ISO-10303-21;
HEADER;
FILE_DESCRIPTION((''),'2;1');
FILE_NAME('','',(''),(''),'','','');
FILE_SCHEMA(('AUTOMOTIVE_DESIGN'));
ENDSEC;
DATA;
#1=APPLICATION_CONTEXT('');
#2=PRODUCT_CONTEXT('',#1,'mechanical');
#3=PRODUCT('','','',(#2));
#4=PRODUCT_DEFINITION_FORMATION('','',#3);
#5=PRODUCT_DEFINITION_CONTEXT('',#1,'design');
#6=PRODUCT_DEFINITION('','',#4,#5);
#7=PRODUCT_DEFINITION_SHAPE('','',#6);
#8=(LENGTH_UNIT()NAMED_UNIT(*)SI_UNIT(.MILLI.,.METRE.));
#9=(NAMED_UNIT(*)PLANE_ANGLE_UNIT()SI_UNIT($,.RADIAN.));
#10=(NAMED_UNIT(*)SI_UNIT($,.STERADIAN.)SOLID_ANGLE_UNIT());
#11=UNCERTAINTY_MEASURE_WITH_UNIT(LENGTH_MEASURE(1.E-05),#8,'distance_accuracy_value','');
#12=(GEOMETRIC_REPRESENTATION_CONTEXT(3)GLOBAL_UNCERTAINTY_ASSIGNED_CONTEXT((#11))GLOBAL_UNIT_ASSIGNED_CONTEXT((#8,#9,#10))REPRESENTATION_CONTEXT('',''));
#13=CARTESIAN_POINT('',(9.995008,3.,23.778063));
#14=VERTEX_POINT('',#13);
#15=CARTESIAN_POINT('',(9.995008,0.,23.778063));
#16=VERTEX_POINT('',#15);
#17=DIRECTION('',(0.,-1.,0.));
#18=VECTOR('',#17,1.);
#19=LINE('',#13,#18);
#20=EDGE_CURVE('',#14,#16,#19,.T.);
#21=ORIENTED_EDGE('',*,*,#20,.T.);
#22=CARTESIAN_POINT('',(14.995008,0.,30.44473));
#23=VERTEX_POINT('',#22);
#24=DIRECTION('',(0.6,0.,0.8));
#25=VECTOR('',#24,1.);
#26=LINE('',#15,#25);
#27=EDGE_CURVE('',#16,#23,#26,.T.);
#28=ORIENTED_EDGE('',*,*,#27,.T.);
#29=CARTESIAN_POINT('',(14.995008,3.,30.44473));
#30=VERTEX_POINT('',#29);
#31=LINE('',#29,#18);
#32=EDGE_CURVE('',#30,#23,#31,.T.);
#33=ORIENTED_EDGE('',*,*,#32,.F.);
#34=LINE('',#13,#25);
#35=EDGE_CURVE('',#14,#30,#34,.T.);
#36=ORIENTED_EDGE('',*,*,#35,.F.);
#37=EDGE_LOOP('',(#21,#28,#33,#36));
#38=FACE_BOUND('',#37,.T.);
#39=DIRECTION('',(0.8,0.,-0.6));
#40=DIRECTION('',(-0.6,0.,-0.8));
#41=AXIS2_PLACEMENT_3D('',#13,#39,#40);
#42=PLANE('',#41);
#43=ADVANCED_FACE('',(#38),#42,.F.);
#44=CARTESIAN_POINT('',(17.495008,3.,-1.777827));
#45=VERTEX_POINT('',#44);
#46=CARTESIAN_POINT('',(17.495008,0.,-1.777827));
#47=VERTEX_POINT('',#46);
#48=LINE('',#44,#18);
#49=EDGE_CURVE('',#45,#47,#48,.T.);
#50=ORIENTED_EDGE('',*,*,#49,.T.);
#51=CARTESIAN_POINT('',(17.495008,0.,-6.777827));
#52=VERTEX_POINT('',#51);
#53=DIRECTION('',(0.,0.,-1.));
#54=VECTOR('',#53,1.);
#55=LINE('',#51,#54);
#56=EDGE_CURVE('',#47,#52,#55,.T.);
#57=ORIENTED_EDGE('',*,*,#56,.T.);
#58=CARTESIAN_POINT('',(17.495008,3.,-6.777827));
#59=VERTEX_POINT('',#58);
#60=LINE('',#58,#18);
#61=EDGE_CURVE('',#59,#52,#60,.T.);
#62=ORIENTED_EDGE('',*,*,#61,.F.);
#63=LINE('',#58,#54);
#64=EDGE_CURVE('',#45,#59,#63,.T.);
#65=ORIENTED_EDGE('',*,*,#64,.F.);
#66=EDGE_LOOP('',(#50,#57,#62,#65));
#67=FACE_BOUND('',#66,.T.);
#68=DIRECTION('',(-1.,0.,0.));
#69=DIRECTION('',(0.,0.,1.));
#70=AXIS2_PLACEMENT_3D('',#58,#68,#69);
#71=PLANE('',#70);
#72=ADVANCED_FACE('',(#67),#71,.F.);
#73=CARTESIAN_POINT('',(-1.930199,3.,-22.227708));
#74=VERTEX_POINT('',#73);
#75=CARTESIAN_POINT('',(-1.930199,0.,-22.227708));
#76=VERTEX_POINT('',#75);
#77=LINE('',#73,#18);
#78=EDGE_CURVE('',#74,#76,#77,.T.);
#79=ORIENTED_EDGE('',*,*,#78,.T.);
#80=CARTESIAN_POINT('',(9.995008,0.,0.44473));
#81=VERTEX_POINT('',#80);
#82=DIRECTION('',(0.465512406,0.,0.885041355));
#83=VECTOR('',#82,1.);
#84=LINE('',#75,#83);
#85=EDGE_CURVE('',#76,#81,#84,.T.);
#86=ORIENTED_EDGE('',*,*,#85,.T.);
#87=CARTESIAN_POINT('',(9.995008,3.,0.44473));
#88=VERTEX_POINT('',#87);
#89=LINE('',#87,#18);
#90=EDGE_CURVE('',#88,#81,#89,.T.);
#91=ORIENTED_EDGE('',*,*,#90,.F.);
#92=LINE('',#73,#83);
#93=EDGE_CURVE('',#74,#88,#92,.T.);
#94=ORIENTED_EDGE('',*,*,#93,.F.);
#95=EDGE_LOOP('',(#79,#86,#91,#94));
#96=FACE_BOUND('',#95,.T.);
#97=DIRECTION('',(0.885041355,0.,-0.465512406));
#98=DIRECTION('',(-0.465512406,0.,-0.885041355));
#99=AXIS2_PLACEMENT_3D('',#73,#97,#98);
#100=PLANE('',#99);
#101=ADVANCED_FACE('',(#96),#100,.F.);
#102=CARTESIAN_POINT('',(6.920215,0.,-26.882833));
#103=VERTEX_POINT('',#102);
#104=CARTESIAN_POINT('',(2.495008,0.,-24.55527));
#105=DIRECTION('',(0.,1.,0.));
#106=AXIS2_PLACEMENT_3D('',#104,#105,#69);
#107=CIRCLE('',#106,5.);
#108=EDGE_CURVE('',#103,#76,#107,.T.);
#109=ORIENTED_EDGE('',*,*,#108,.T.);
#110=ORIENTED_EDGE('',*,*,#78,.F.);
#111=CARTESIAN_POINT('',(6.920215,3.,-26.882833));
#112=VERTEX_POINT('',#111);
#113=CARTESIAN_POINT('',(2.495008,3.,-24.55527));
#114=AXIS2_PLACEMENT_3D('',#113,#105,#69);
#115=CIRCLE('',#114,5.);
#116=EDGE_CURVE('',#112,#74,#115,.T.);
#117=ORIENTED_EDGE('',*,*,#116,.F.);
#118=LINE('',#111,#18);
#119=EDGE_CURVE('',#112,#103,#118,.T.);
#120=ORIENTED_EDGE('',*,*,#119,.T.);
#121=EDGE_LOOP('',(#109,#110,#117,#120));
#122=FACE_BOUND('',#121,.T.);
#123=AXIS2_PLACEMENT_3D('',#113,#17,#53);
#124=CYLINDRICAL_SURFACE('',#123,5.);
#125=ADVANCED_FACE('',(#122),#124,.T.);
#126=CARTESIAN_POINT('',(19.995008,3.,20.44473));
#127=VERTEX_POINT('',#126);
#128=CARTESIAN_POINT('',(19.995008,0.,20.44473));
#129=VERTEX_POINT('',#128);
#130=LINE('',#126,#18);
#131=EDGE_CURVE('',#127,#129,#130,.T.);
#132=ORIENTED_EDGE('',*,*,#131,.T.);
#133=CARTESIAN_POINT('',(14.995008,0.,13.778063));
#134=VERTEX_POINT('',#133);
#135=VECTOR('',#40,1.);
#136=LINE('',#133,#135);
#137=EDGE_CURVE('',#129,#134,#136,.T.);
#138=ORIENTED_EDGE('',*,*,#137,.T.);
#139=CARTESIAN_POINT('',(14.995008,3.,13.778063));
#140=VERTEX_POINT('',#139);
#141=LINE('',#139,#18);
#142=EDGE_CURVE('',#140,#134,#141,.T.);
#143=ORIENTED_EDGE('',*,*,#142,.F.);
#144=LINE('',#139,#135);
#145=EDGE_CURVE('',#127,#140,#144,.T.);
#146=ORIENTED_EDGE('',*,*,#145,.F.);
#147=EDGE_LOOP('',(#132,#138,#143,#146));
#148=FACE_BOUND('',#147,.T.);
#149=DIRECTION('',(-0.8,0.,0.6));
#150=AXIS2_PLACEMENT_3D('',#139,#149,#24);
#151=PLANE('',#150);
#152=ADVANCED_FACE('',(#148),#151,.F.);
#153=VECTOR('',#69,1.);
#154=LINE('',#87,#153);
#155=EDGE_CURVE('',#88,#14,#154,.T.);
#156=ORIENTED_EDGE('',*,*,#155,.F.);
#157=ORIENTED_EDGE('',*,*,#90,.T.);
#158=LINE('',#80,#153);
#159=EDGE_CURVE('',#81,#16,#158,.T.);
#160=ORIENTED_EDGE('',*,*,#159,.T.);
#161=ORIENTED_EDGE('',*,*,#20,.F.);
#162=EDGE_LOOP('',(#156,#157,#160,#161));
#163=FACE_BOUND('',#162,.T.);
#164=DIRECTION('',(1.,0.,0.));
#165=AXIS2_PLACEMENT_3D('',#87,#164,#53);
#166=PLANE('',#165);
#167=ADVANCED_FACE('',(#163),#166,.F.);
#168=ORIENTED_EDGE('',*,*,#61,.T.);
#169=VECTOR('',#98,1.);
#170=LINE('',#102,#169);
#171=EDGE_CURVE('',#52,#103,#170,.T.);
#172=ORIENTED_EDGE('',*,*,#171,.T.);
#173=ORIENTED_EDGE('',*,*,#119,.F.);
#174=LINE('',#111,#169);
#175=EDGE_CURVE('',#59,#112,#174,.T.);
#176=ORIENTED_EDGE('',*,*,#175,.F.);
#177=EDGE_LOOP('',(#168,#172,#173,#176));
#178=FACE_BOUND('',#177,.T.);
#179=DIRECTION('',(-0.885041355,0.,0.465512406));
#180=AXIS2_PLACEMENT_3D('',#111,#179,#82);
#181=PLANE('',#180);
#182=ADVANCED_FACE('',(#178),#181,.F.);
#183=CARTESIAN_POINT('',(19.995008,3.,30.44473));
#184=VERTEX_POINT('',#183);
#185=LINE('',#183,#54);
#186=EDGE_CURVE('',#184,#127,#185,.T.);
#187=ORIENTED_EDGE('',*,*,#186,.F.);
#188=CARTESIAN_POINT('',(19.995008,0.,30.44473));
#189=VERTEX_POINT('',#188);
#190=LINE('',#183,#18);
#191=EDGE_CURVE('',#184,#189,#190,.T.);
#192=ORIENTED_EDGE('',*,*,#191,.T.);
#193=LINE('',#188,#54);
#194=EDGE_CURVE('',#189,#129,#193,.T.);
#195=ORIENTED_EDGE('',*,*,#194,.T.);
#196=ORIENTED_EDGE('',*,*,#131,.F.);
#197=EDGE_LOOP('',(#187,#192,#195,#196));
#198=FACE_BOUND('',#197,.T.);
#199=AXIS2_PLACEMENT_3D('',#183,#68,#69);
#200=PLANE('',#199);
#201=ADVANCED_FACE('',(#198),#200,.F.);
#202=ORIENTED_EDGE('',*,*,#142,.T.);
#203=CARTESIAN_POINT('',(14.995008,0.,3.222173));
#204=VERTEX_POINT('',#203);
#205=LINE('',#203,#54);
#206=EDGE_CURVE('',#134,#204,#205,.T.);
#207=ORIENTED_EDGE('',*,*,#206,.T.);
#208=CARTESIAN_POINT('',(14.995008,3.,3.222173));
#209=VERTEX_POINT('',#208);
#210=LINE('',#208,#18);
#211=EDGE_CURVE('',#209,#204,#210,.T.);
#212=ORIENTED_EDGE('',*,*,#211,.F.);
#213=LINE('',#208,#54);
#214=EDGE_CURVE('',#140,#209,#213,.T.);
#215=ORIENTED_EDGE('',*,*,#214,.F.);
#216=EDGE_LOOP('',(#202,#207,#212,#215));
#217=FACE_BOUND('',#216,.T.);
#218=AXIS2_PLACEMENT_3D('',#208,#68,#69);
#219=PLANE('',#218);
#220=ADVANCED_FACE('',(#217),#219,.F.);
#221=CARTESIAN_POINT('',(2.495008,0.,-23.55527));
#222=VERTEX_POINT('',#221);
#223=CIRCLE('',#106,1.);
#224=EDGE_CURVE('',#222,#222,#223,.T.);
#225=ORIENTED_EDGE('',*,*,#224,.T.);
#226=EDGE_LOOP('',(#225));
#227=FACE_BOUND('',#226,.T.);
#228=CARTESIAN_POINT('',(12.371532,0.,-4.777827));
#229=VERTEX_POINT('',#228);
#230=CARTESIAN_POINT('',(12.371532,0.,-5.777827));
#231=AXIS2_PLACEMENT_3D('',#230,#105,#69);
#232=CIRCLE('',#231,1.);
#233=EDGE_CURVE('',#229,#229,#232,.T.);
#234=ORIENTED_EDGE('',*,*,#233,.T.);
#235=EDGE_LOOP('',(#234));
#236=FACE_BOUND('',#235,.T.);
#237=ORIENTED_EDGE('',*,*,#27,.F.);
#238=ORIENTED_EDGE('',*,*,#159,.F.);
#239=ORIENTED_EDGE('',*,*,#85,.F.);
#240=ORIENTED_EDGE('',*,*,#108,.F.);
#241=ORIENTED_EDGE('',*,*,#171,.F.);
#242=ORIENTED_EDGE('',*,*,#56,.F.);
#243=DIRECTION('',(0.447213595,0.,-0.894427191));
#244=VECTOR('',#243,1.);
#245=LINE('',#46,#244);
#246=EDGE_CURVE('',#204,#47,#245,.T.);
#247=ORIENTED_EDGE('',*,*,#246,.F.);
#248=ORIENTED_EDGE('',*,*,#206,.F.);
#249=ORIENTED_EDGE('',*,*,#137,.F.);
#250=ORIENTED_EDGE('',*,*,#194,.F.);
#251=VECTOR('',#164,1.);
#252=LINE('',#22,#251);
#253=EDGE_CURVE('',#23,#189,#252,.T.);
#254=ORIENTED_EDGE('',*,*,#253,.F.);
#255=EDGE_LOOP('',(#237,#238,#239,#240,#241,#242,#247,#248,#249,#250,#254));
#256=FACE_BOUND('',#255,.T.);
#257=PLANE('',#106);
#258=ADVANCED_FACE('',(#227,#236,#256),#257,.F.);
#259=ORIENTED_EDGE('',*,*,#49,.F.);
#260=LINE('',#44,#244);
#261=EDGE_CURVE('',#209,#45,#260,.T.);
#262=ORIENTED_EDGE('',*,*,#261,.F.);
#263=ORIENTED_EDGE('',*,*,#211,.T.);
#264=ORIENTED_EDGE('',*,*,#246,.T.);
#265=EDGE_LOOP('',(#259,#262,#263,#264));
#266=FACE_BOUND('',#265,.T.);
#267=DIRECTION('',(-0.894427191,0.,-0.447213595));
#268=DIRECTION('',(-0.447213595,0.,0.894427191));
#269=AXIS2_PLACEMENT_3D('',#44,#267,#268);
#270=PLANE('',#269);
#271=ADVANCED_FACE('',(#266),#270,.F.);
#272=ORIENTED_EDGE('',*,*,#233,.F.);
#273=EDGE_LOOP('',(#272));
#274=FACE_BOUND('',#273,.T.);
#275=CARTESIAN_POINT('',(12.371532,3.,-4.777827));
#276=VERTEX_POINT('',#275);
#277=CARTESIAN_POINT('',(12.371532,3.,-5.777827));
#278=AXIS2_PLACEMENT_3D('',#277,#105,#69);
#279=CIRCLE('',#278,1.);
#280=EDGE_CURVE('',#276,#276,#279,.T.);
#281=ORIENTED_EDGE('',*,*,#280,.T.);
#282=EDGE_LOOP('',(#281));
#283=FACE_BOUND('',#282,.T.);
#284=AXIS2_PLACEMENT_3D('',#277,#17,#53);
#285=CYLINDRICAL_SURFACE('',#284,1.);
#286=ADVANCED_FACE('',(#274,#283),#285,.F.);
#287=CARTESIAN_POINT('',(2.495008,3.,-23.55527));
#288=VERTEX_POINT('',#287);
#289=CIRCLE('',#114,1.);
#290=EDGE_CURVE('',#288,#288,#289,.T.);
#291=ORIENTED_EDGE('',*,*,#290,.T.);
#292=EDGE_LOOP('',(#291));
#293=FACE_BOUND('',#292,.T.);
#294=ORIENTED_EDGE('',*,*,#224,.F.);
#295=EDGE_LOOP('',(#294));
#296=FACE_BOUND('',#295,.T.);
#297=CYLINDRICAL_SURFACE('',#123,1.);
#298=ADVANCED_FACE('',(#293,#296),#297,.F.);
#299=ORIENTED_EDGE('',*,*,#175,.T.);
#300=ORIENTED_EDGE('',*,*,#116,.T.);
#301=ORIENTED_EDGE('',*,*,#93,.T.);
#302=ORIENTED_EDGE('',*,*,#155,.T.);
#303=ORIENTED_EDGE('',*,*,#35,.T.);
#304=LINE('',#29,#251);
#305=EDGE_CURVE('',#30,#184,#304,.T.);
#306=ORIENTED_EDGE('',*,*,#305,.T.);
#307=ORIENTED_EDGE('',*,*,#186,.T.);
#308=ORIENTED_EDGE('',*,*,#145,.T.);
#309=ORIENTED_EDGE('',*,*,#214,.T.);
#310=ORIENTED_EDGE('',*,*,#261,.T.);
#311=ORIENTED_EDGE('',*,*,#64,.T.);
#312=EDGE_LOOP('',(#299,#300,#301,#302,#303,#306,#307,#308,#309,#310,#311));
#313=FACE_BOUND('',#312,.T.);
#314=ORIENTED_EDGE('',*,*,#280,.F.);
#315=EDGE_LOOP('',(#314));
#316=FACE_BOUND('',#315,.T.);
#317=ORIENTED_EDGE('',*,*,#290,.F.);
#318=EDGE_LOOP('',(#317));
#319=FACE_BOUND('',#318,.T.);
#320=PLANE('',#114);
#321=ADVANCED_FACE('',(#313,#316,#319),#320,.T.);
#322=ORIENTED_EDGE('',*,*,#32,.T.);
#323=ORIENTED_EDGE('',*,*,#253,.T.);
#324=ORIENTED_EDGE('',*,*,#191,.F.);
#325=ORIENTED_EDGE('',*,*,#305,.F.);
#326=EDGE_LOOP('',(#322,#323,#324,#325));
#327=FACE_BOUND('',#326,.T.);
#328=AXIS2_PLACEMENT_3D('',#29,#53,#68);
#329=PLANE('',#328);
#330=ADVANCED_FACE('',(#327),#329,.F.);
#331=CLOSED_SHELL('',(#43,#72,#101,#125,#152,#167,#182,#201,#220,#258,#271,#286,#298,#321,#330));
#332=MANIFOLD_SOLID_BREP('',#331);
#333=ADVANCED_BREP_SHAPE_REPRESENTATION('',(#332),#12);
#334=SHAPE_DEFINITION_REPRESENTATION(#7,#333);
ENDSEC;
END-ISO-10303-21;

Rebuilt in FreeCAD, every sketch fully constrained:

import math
import FreeCAD as App
import Part
import Sketcher

V = App.Vector
Q = App.Units.Quantity

doc = App.newDocument("Part")
params = doc.addObject("Spreadsheet::Sheet", "Params")
for row, (alias, value) in enumerate([
    ("sketch1_diameter", "2 mm"),
    ("sketch1_radius", "5 mm"),
    ("sketch1_width", "5 mm"),
    ("sketch1_height", "10 mm"),
    ("pad1_length", "3 mm"),
], start=1):
    params.set(f"A{row}", alias)
    params.set(f"B{row}", "=" + value)
    params.setAlias(f"B{row}", alias)

body = doc.addObject("PartDesign::Body", "Body")

sketch1 = doc.addObject("Sketcher::SketchObject", "Sketch")
body.addObject(sketch1)
sketch1.AttachmentSupport = (doc.XZ_Plane, [""])
sketch1.MapMode = "FlatFace"
sketch1.addGeometry([
    Part.LineSegment(V(-1.930199, -22.227708, 0), V(9.995008, 0.44473, 0)),
    Part.LineSegment(V(9.995008, 0.44473, 0), V(9.995008, 23.778063, 0)),
    Part.LineSegment(V(9.995008, 23.778063, 0), V(14.995008, 30.44473, 0)),
    Part.LineSegment(V(14.995008, 30.44473, 0), V(19.995008, 30.44473, 0)),
    Part.LineSegment(V(19.995008, 30.44473, 0), V(19.995008, 20.44473, 0)),
    Part.LineSegment(V(19.995008, 20.44473, 0), V(14.995008, 13.778063, 0)),
    Part.LineSegment(V(14.995008, 13.778063, 0), V(14.995008, 3.222173, 0)),
    Part.LineSegment(V(14.995008, 3.222173, 0), V(17.495008, -1.777827, 0)),
    Part.LineSegment(V(17.495008, -1.777827, 0), V(17.495008, -6.777827, 0)),
    Part.LineSegment(V(17.495008, -6.777827, 0), V(6.920215, -26.882833, 0)),
    Part.ArcOfCircle(Part.Circle(V(2.495008, -24.55527, 0), V(0, 0, 1), 5), math.radians(152.256611), math.radians(332.256611)),
    Part.Circle(V(12.371532, -5.777827, 0), V(0, 0, 1), 1),
    Part.Circle(V(2.495008, -24.55527, 0), V(0, 0, 1), 1),
], False)
sketch1.addConstraint([
    Sketcher.Constraint("Coincident", 0, 2, 1, 1),
    Sketcher.Constraint("Coincident", 1, 2, 2, 1),
    Sketcher.Constraint("Coincident", 2, 2, 3, 1),
    Sketcher.Constraint("Coincident", 3, 2, 4, 1),
    Sketcher.Constraint("Coincident", 4, 2, 5, 1),
    Sketcher.Constraint("Coincident", 5, 2, 6, 1),
    Sketcher.Constraint("Coincident", 6, 2, 7, 1),
    Sketcher.Constraint("Coincident", 7, 2, 8, 1),
    Sketcher.Constraint("Coincident", 8, 2, 9, 1),
    Sketcher.Constraint("Tangent", 9, 2, 10, 2),
    Sketcher.Constraint("Tangent", 10, 1, 0, 1),
    Sketcher.Constraint("Vertical", 1),
    Sketcher.Constraint("Horizontal", 3),
    Sketcher.Constraint("Vertical", 4),
    Sketcher.Constraint("Vertical", 6),
    Sketcher.Constraint("Vertical", 8),
    Sketcher.Constraint("Coincident", 12, 3, 10, 3),
    Sketcher.Constraint("Equal", 11, 12),
    Sketcher.Constraint("Parallel", 2, 5),
    Sketcher.Constraint("Parallel", 0, 9),
    Sketcher.Constraint("Vertical", 2, 2, 5, 2),
    Sketcher.Constraint("Equal", 3, 8),
    Sketcher.Constraint("Equal", 2, 5),
    Sketcher.Constraint("Diameter", 11, Q("2 mm")),
    Sketcher.Constraint("Radius", 10, Q("5 mm")),
    Sketcher.Constraint("DistanceX", 3, 1, 3, 2, Q("5 mm")),
    Sketcher.Constraint("DistanceY", 4, 2, 4, 1, Q("10 mm")),
    Sketcher.Constraint("DistanceY", 12, 3, 0, 2, Q("25 mm")),
    Sketcher.Constraint("DistanceY", 0, 2, 2, 2, Q("30 mm")),
    Sketcher.Constraint("DistanceY", 11, 3, 6, 2, Q("9 mm")),
    Sketcher.Constraint("DistanceY", 7, 2, 6, 2, Q("5 mm")),
    Sketcher.Constraint("DistanceX", 12, 3, 0, 2, Q("7.5 mm")),
    Sketcher.Constraint("DistanceX", 6, 2, 7, 2, Q("2.5 mm")),
    Sketcher.Constraint("DistanceY", 6, 2, 6, 1, Q("10.55589 mm")),
    Sketcher.Constraint("DistanceX", 10, 1, -1, 1, Q("1.930199 mm")),
    Sketcher.Constraint("DistanceY", 10, 3, -1, 1, Q("24.55527 mm")),
    Sketcher.Constraint("DistanceX", 10, 1, 11, 3, Q("14.301731 mm")),
])
sketch1.setExpression("Constraints[23]", "Params.sketch1_diameter")
sketch1.setExpression("Constraints[24]", "Params.sketch1_radius")
sketch1.setExpression("Constraints[25]", "Params.sketch1_width")
sketch1.setExpression("Constraints[26]", "Params.sketch1_height")
pad1 = doc.addObject("PartDesign::Pad", "Pad")
body.addObject(pad1)
pad1.Profile = sketch1
pad1.setExpression("Length", "Params.pad1_length")
pad1.Reversed = True

doc.recompute()
